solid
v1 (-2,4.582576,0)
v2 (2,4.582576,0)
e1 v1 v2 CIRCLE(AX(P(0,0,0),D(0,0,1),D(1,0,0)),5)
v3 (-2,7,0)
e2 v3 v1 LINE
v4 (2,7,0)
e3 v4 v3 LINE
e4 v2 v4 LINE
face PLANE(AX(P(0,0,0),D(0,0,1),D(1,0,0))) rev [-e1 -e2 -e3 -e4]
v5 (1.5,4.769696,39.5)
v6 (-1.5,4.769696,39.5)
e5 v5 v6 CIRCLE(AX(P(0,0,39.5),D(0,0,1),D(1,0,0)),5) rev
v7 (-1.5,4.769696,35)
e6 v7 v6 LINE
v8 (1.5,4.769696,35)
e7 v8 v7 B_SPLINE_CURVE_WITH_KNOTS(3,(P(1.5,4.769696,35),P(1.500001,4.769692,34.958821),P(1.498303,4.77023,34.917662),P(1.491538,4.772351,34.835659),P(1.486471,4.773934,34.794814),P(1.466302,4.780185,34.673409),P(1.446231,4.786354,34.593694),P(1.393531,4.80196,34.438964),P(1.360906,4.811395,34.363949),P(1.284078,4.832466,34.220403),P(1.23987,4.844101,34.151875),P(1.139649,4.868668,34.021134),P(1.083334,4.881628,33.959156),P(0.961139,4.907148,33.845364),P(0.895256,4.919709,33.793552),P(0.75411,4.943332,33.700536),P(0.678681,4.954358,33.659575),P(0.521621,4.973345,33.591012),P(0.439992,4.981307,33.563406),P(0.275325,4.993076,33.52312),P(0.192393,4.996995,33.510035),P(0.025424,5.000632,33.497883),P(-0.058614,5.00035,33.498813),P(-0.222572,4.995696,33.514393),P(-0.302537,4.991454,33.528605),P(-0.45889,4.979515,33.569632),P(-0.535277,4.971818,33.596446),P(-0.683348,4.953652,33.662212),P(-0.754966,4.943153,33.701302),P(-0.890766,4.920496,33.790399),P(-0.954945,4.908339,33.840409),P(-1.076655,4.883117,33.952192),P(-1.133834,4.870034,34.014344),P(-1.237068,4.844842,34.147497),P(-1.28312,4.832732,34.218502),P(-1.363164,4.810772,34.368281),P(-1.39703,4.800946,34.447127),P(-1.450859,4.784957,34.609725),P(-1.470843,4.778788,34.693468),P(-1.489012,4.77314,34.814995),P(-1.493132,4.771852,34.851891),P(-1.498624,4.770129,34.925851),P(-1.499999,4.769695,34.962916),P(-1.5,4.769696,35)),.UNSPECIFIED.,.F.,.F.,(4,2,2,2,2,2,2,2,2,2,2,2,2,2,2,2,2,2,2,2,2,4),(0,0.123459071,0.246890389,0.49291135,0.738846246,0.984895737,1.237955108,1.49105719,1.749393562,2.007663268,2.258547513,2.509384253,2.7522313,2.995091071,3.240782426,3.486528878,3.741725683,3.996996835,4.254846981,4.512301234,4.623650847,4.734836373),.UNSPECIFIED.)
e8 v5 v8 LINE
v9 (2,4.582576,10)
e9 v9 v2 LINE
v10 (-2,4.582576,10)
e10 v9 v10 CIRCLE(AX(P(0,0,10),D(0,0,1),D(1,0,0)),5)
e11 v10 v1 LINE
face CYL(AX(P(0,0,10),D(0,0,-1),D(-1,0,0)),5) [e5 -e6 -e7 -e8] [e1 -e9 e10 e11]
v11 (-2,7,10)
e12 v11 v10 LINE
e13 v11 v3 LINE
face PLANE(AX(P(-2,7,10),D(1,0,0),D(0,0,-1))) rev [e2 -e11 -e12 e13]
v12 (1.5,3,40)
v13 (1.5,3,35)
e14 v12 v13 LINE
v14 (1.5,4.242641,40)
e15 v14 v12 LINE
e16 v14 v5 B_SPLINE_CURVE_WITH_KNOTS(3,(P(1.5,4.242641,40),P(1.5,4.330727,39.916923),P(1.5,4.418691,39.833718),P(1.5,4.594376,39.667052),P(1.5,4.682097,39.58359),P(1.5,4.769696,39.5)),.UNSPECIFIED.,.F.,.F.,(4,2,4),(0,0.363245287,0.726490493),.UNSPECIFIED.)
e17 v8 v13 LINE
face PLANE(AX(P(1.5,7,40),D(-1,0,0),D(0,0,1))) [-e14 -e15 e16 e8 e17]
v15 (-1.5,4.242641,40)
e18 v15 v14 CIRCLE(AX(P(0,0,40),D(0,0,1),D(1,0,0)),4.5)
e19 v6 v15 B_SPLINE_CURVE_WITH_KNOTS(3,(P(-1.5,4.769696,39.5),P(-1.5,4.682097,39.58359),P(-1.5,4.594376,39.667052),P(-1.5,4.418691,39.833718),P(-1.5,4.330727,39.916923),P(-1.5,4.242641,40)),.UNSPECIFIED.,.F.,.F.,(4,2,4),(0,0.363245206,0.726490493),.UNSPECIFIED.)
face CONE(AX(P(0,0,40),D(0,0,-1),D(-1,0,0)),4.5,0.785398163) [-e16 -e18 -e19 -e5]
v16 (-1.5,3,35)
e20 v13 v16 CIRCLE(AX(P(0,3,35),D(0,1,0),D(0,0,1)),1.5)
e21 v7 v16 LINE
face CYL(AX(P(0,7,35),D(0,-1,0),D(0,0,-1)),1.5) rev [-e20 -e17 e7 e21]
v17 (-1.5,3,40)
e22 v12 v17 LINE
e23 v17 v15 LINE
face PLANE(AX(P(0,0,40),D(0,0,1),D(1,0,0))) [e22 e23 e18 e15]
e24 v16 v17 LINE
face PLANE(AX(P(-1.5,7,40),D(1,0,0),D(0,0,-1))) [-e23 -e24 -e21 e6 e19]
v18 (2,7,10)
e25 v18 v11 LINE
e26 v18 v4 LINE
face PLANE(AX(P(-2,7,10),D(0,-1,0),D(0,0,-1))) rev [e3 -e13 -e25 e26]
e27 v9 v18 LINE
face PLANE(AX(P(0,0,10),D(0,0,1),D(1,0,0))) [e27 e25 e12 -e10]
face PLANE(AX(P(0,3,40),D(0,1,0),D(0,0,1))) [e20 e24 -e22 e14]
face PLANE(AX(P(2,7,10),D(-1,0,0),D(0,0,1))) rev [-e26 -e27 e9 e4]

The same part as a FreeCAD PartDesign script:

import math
import FreeCAD as App
import Part
import Sketcher

V = App.Vector


def edges_at(feature, points):
    """Names of the edges that pass closest to the given points."""
    edges = feature.Shape.Edges
    near = lambda p: min(range(len(edges)), key=lambda i: edges[i].distToShape(Part.Vertex(*p))[0])
    return sorted({f"Edge{near(p) + 1}" for p in points})

doc = App.newDocument("Part")
body = doc.addObject("PartDesign::Body", "Body")

# Sketch on XY plane
sketch1 = body.newObject("Sketcher::SketchObject", "Sketch")
sketch1.AttachmentSupport = (doc.getObject("XY_Plane"), [""])
sketch1.MapMode = "FlatFace"
sketch1.addGeometry([
    Part.LineSegment(V(2, 7, 0), V(-2, 7, 0)),
    Part.LineSegment(V(-2, 7, 0), V(-2, 4.6, 0)),
    Part.ArcOfCircle(Part.Circle(V(0, 0, 0), V(0, 0, 1), 5), math.radians(114), math.radians(426)),
    Part.LineSegment(V(2, 4.6, 0), V(2, 7, 0)),
], False)
sketch1.addConstraint([
    Sketcher.Constraint("Coincident", 0, 2, 1, 1),
    Sketcher.Constraint("Coincident", 1, 2, 2, 1),
    Sketcher.Constraint("Coincident", 2, 2, 3, 1),
    Sketcher.Constraint("Coincident", 3, 2, 0, 1),
    Sketcher.Constraint("Horizontal", 0),
    Sketcher.Constraint("Vertical", 1),
    Sketcher.Constraint("Vertical", 3),
    Sketcher.Constraint("Coincident", 2, 3, -1, 1),
    Sketcher.Constraint("Horizontal", 1, 2, 2, 2),
    Sketcher.Constraint("Radius", 2, 5.0),
    Sketcher.Constraint("DistanceX", 0, 2, 0, 1, 4.0),
    Sketcher.Constraint("DistanceY", -1, 1, 0, 2, 7.0),
])
pad1 = body.newObject("PartDesign::Pad", "Pad")
pad1.Profile = sketch1
pad1.Length = 10

# Sketch on XY plane
sketch2 = body.newObject("Sketcher::SketchObject", "Sketch001")
sketch2.AttachmentSupport = (doc.getObject("XY_Plane"), [""])
sketch2.MapMode = "FlatFace"
sketch2.AttachmentOffset = App.Placement(V(0, 0, 10), App.Rotation())
sketch2.addGeometry(Part.Circle(V(0, 0, 0), V(0, 0, 1), 5), False)
sketch2.addConstraint([
    Sketcher.Constraint("Coincident", 0, 3, -1, 1),
    Sketcher.Constraint("Diameter", 0, 10.0),
])
pad2 = body.newObject("PartDesign::Pad", "Pad001")
pad2.Profile = sketch2
pad2.Length = 30

# Sketch on XZ plane
sketch3 = body.newObject("Sketcher::SketchObject", "Sketch002")
sketch3.AttachmentSupport = (doc.getObject("XZ_Plane"), [""])
sketch3.MapMode = "FlatFace"
sketch3.AttachmentOffset = App.Placement(V(0, 0, -3), App.Rotation())
sketch3.addGeometry([
    Part.LineSegment(V(-1.5, 35, 0), V(-1.5, 40, 0)),
    Part.ArcOfCircle(Part.Circle(V(0, 40, 0), V(0, 0, 1), 1.5), math.radians(0), math.radians(180)),
    Part.LineSegment(V(1.5, 40, 0), V(1.5, 35, 0)),
    Part.ArcOfCircle(Part.Circle(V(0, 35, 0), V(0, 0, 1), 1.5), math.radians(180), math.radians(360)),
], False)
sketch3.addConstraint([
    Sketcher.Constraint("Tangent", 0, 2, 1, 2),
    Sketcher.Constraint("Tangent", 1, 1, 2, 1),
    Sketcher.Constraint("Tangent", 2, 2, 3, 2),
    Sketcher.Constraint("Tangent", 3, 1, 0, 1),
    Sketcher.Constraint("Vertical", 0),
    Sketcher.Constraint("Vertical", 2),
    Sketcher.Constraint("PointOnObject", 1, 3, -2),
    Sketcher.Constraint("Radius", 1, 1.5),
    Sketcher.Constraint("DistanceY", 0, 1, 0, 2, 5.0),
    Sketcher.Constraint("DistanceY", -1, 1, 1, 3, 40.0),
])
pocket1 = body.newObject("PartDesign::Pocket", "Pocket")
pocket1.Profile = sketch3
pocket1.Type = "ThroughAll"
doc.recompute()

chamfer = body.newObject("PartDesign::Chamfer", "Chamfer")
chamfer.Base = (pocket1, edges_at(pocket1, [(0.267, -4.993, 40)]))
chamfer.Size = 0.5

doc.recompute()
